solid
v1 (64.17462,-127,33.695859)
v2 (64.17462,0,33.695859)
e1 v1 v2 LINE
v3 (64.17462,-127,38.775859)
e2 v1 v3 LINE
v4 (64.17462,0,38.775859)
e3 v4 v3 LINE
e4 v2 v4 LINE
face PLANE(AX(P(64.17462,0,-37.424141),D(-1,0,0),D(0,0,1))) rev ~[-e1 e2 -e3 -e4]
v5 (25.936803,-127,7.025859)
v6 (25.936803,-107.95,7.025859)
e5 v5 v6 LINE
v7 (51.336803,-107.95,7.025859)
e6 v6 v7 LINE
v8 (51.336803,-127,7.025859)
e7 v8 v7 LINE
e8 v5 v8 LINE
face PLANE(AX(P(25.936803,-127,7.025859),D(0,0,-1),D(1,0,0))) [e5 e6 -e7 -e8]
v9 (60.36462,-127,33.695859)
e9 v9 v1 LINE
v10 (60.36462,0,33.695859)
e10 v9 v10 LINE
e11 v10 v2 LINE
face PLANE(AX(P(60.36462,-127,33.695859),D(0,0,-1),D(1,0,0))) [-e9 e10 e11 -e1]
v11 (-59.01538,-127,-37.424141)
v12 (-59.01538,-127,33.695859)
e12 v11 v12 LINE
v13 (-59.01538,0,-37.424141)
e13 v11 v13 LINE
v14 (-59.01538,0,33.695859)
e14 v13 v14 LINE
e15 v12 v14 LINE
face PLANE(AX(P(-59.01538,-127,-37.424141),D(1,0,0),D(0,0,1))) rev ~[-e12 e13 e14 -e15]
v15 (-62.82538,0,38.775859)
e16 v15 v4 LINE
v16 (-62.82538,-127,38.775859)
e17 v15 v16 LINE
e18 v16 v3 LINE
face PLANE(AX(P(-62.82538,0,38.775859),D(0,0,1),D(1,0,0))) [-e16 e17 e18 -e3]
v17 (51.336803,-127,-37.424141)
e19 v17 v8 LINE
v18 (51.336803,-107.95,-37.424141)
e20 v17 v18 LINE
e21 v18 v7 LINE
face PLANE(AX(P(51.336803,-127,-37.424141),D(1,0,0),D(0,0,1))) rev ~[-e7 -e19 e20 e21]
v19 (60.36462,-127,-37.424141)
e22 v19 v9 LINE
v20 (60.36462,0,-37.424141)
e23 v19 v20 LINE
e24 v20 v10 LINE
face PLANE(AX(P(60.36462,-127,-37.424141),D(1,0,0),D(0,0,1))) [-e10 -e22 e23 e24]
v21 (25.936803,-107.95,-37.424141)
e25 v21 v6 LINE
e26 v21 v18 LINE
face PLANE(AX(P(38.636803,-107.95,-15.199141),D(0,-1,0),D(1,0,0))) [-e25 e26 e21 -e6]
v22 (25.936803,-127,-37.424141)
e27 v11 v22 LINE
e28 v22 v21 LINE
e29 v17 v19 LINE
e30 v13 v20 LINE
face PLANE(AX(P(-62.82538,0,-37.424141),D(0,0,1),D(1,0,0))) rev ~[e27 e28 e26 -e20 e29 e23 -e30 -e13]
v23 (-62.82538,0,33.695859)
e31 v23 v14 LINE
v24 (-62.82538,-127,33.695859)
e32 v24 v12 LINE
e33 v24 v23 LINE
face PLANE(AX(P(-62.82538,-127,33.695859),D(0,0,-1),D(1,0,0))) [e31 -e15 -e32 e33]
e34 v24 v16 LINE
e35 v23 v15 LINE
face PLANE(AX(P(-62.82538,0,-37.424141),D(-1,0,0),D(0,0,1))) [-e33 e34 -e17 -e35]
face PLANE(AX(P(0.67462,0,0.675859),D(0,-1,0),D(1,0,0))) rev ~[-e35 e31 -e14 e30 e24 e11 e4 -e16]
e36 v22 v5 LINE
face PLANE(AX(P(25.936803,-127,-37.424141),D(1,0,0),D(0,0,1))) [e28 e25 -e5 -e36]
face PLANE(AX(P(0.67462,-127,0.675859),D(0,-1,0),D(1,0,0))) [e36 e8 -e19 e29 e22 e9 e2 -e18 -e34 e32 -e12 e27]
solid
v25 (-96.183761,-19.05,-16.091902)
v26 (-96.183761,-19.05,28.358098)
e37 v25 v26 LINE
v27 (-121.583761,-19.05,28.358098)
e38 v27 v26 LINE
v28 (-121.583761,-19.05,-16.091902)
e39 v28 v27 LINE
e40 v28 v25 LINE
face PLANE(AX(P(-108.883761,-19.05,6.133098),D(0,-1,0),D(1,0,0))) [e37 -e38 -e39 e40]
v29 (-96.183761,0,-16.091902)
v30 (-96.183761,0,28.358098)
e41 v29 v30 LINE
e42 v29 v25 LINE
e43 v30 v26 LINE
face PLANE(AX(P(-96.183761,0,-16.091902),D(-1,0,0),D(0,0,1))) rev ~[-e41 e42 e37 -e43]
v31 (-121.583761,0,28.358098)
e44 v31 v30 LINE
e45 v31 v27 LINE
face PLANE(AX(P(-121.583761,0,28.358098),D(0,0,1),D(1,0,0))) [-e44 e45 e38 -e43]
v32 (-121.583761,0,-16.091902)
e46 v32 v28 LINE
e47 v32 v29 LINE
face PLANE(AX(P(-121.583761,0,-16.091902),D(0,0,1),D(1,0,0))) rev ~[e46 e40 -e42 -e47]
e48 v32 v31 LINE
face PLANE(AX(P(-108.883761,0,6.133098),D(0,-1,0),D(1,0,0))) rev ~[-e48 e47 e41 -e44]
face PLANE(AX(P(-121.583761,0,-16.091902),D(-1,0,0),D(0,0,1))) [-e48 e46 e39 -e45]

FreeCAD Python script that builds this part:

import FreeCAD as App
import Part
import Sketcher
Q = App.Units.Quantity

doc = App.newDocument("Part")
body = doc.addObject("PartDesign::Body", "Body")

sketch1 = body.newObject("Sketcher::SketchObject", "Sketch")
sketch1.AttachmentSupport = (doc.getObject("XZ_Plane"), [""])
sketch1.MapMode = "FlatFace"
sketch1.addGeometry([
    Part.LineSegment(App.Vector(-62.82538, 38.775859, 0), App.Vector(-62.82538, -37.424141, 0)),
    Part.LineSegment(App.Vector(-62.82538, -37.424141, 0), App.Vector(64.17462, -37.424141, 0)),
    Part.LineSegment(App.Vector(64.17462, -37.424141, 0), App.Vector(64.17462, 38.775859, 0)),
    Part.LineSegment(App.Vector(64.17462, 38.775859, 0), App.Vector(-62.82538, 38.775859, 0)),
], False)
sketch1.addConstraint([
    Sketcher.Constraint("Coincident", 0, 2, 1, 1),
    Sketcher.Constraint("Coincident", 1, 2, 2, 1),
    Sketcher.Constraint("Coincident", 2, 2, 3, 1),
    Sketcher.Constraint("Coincident", 3, 2, 0, 1),
    Sketcher.Constraint("Vertical", 0),
    Sketcher.Constraint("Horizontal", 1),
    Sketcher.Constraint("Vertical", 2),
    Sketcher.Constraint("Horizontal", 3),
    Sketcher.Constraint("DistanceX", 1, 1, 1, 2, Q("5 in")),
    Sketcher.Constraint("DistanceY", 0, 2, 0, 1, Q("3 in")),
    Sketcher.Constraint("DistanceX", 0, 2, -1, 1, Q("62.82538 mm")),
    Sketcher.Constraint("DistanceY", 0, 2, -1, 1, Q("37.424141 mm")),
])
pad1 = body.newObject("PartDesign::Pad", "Pad")
pad1.Profile = sketch1
pad1.Length = Q("5 in")

sketch2 = body.newObject("Sketcher::SketchObject", "Sketch001")
sketch2.AttachmentSupport = (doc.getObject("XZ_Plane"), [""])
sketch2.MapMode = "FlatFace"
sketch2.AttachmentOffset = App.Placement(App.Vector(0, 0, 5 * 25.4), App.Rotation())
sketch2.addGeometry([
    Part.LineSegment(App.Vector(25.936803, 7.025859, 0), App.Vector(25.936803, -37.424141, 0)),
    Part.LineSegment(App.Vector(25.936803, -37.424141, 0), App.Vector(51.336803, -37.424141, 0)),
    Part.LineSegment(App.Vector(51.336803, -37.424141, 0), App.Vector(51.336803, 7.025859, 0)),
    Part.LineSegment(App.Vector(51.336803, 7.025859, 0), App.Vector(25.936803, 7.025859, 0)),
], False)
sketch2.addConstraint([
    Sketcher.Constraint("Coincident", 0, 2, 1, 1),
    Sketcher.Constraint("Coincident", 1, 2, 2, 1),
    Sketcher.Constraint("Coincident", 2, 2, 3, 1),
    Sketcher.Constraint("Coincident", 3, 2, 0, 1),
    Sketcher.Constraint("Vertical", 0),
    Sketcher.Constraint("Horizontal", 1),
    Sketcher.Constraint("Vertical", 2),
    Sketcher.Constraint("Horizontal", 3),
    Sketcher.Constraint("DistanceX", 1, 1, 1, 2, Q("1 in")),
    Sketcher.Constraint("DistanceY", 0, 2, 0, 1, Q("1.75 in")),
    Sketcher.Constraint("DistanceY", 0, 2, -1, 1, Q("37.424141 mm")),
    Sketcher.Constraint("DistanceX", -1, 1, 0, 2, Q("25.936803 mm")),
])
pocket1 = body.newObject("PartDesign::Pocket", "Pocket")
pocket1.Profile = sketch2
pocket1.Length = Q("0.75 in")

sketch3 = body.newObject("Sketcher::SketchObject", "Sketch002")
sketch3.AttachmentSupport = (doc.getObject("XZ_Plane"), [""])
sketch3.MapMode = "FlatFace"
sketch3.AttachmentOffset = App.Placement(App.Vector(0, 0, 5 * 25.4), App.Rotation())
sketch3.addGeometry([
    Part.LineSegment(App.Vector(-62.82538, 33.695859, 0), App.Vector(-62.82538, -37.424141, 0)),
    Part.LineSegment(App.Vector(-62.82538, -37.424141, 0), App.Vector(-59.01538, -37.424141, 0)),
    Part.LineSegment(App.Vector(-59.01538, -37.424141, 0), App.Vector(-59.01538, 33.695859, 0)),
    Part.LineSegment(App.Vector(-59.01538, 33.695859, 0), App.Vector(-62.82538, 33.695859, 0)),
], False)
sketch3.addConstraint([
    Sketcher.Constraint("Coincident", 0, 2, 1, 1),
    Sketcher.Constraint("Coincident", 1, 2, 2, 1),
    Sketcher.Constraint("Coincident", 2, 2, 3, 1),
    Sketcher.Constraint("Coincident", 3, 2, 0, 1),
    Sketcher.Constraint("Vertical", 0),
    Sketcher.Constraint("Horizontal", 1),
    Sketcher.Constraint("Vertical", 2),
    Sketcher.Constraint("Horizontal", 3),
    Sketcher.Constraint("DistanceY", 0, 2, 0, 1, Q("2.8 in")),
    Sketcher.Constraint("DistanceX", 1, 1, 1, 2, Q("0.15 in")),
    Sketcher.Constraint("DistanceX", 0, 2, -1, 1, Q("62.82538 mm")),
    Sketcher.Constraint("DistanceY", 0, 2, -1, 1, Q("37.424141 mm")),
])
pocket2 = body.newObject("PartDesign::Pocket", "Pocket001")
pocket2.Profile = sketch3
pocket2.Length = Q("5 in")

sketch4 = body.newObject("Sketcher::SketchObject", "Sketch003")
sketch4.AttachmentSupport = (doc.getObject("XZ_Plane"), [""])
sketch4.MapMode = "FlatFace"
sketch4.AttachmentOffset = App.Placement(App.Vector(0, 0, 5 * 25.4), App.Rotation())
sketch4.addGeometry([
    Part.LineSegment(App.Vector(60.36462, 33.695859, 0), App.Vector(60.36462, -37.424141, 0)),
    Part.LineSegment(App.Vector(60.36462, -37.424141, 0), App.Vector(64.17462, -37.424141, 0)),
    Part.LineSegment(App.Vector(64.17462, -37.424141, 0), App.Vector(64.17462, 33.695859, 0)),
    Part.LineSegment(App.Vector(64.17462, 33.695859, 0), App.Vector(60.36462, 33.695859, 0)),
], False)
sketch4.addConstraint([
    Sketcher.Constraint("Coincident", 0, 2, 1, 1),
    Sketcher.Constraint("Coincident", 1, 2, 2, 1),
    Sketcher.Constraint("Coincident", 2, 2, 3, 1),
    Sketcher.Constraint("Coincident", 3, 2, 0, 1),
    Sketcher.Constraint("Vertical", 0),
    Sketcher.Constraint("Horizontal", 1),
    Sketcher.Constraint("Vertical", 2),
    Sketcher.Constraint("Horizontal", 3),
    Sketcher.Constraint("DistanceY", 0, 2, 0, 1, Q("2.8 in")),
    Sketcher.Constraint("DistanceX", 1, 1, 1, 2, Q("0.15 in")),
    Sketcher.Constraint("DistanceX", -1, 1, 0, 2, Q("60.36462 mm")),
    Sketcher.Constraint("DistanceY", 0, 2, -1, 1, Q("37.424141 mm")),
])
pocket3 = body.newObject("PartDesign::Pocket", "Pocket002")
pocket3.Profile = sketch4
pocket3.Length = Q("5 in")
body2 = doc.addObject("PartDesign::Body", "Body001")

sketch5 = body2.newObject("Sketcher::SketchObject", "Sketch004")
sketch5.AttachmentSupport = (doc.getObject("XZ_Plane001"), [""])
sketch5.MapMode = "FlatFace"
sketch5.addGeometry([
    Part.LineSegment(App.Vector(-121.583761, 28.358098, 0), App.Vector(-121.583761, -16.091902, 0)),
    Part.LineSegment(App.Vector(-121.583761, -16.091902, 0), App.Vector(-96.183761, -16.091902, 0)),
    Part.LineSegment(App.Vector(-96.183761, -16.091902, 0), App.Vector(-96.183761, 28.358098, 0)),
    Part.LineSegment(App.Vector(-96.183761, 28.358098, 0), App.Vector(-121.583761, 28.358098, 0)),
], False)
sketch5.addConstraint([
    Sketcher.Constraint("Coincident", 0, 2, 1, 1),
    Sketcher.Constraint("Coincident", 1, 2, 2, 1),
    Sketcher.Constraint("Coincident", 2, 2, 3, 1),
    Sketcher.Constraint("Coincident", 3, 2, 0, 1),
    Sketcher.Constraint("Vertical", 0),
    Sketcher.Constraint("Horizontal", 1),
    Sketcher.Constraint("Vertical", 2),
    Sketcher.Constraint("Horizontal", 3),
    Sketcher.Constraint("DistanceX", 1, 1, 1, 2, Q("1 in")),
    Sketcher.Constraint("DistanceY", 0, 2, 0, 1, Q("1.75 in")),
    Sketcher.Constraint("DistanceX", 0, 2, -1, 1, Q("121.583761 mm")),
    Sketcher.Constraint("DistanceY", 0, 2, -1, 1, Q("16.091902 mm")),
])
pad2 = body2.newObject("PartDesign::Pad", "Pad001")
pad2.Profile = sketch5
pad2.Length = Q("0.75 in")

doc.recompute()
